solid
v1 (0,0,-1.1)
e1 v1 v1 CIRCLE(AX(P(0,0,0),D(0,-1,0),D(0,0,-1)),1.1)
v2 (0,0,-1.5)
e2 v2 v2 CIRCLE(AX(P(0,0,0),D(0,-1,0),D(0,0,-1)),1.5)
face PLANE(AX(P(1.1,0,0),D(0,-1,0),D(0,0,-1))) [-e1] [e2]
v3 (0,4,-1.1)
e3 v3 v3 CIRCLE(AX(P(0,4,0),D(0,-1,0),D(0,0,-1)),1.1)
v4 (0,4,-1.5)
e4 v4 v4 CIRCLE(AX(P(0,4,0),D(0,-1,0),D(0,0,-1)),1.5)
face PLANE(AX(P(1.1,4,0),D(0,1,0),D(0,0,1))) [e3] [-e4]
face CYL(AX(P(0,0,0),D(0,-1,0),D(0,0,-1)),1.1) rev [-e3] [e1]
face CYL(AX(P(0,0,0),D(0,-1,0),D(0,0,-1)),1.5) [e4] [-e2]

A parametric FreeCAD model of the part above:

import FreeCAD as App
import Part
import Sketcher
Q = App.Units.Quantity

doc = App.newDocument("Part")
body = doc.addObject("PartDesign::Body", "Body")

sketch1 = doc.addObject("Sketcher::SketchObject", "Sketch")
body.addObject(sketch1)
sketch1.AttachmentSupport = (doc.XY_Plane, [""])
sketch1.MapMode = "FlatFace"
sketch1.addGeometry([
    Part.LineSegment(App.Vector(1.1, 4, 0), App.Vector(1.1, 0, 0)),
    Part.LineSegment(App.Vector(1.1, 0, 0), App.Vector(1.5, 0, 0)),
    Part.LineSegment(App.Vector(1.5, 0, 0), App.Vector(1.5, 4, 0)),
    Part.LineSegment(App.Vector(1.5, 4, 0), App.Vector(1.1, 4, 0)),
], False)
sketch1.addConstraint([
    Sketcher.Constraint("Coincident", 0, 2, 1, 1),
    Sketcher.Constraint("Coincident", 1, 2, 2, 1),
    Sketcher.Constraint("Coincident", 2, 2, 3, 1),
    Sketcher.Constraint("Coincident", 3, 2, 0, 1),
    Sketcher.Constraint("Vertical", 0),
    Sketcher.Constraint("Horizontal", 1),
    Sketcher.Constraint("Vertical", 2),
    Sketcher.Constraint("Horizontal", 3),
    Sketcher.Constraint("PointOnObject", 0, 2, -1),
    Sketcher.Constraint("DistanceY", 0, 2, 0, 1, Q("4 mm")),
    Sketcher.Constraint("DistanceX", 1, 1, 1, 2, Q("0.4 mm")),
    Sketcher.Constraint("DistanceX", -1, 1, 0, 2, Q("1.1 mm")),
])
revolution = doc.addObject("PartDesign::Revolution", "Revolution")
body.addObject(revolution)
revolution.Profile = sketch1
revolution.ReferenceAxis = (sketch1, ["V_Axis"])
revolution.Angle = 360

doc.recompute()
